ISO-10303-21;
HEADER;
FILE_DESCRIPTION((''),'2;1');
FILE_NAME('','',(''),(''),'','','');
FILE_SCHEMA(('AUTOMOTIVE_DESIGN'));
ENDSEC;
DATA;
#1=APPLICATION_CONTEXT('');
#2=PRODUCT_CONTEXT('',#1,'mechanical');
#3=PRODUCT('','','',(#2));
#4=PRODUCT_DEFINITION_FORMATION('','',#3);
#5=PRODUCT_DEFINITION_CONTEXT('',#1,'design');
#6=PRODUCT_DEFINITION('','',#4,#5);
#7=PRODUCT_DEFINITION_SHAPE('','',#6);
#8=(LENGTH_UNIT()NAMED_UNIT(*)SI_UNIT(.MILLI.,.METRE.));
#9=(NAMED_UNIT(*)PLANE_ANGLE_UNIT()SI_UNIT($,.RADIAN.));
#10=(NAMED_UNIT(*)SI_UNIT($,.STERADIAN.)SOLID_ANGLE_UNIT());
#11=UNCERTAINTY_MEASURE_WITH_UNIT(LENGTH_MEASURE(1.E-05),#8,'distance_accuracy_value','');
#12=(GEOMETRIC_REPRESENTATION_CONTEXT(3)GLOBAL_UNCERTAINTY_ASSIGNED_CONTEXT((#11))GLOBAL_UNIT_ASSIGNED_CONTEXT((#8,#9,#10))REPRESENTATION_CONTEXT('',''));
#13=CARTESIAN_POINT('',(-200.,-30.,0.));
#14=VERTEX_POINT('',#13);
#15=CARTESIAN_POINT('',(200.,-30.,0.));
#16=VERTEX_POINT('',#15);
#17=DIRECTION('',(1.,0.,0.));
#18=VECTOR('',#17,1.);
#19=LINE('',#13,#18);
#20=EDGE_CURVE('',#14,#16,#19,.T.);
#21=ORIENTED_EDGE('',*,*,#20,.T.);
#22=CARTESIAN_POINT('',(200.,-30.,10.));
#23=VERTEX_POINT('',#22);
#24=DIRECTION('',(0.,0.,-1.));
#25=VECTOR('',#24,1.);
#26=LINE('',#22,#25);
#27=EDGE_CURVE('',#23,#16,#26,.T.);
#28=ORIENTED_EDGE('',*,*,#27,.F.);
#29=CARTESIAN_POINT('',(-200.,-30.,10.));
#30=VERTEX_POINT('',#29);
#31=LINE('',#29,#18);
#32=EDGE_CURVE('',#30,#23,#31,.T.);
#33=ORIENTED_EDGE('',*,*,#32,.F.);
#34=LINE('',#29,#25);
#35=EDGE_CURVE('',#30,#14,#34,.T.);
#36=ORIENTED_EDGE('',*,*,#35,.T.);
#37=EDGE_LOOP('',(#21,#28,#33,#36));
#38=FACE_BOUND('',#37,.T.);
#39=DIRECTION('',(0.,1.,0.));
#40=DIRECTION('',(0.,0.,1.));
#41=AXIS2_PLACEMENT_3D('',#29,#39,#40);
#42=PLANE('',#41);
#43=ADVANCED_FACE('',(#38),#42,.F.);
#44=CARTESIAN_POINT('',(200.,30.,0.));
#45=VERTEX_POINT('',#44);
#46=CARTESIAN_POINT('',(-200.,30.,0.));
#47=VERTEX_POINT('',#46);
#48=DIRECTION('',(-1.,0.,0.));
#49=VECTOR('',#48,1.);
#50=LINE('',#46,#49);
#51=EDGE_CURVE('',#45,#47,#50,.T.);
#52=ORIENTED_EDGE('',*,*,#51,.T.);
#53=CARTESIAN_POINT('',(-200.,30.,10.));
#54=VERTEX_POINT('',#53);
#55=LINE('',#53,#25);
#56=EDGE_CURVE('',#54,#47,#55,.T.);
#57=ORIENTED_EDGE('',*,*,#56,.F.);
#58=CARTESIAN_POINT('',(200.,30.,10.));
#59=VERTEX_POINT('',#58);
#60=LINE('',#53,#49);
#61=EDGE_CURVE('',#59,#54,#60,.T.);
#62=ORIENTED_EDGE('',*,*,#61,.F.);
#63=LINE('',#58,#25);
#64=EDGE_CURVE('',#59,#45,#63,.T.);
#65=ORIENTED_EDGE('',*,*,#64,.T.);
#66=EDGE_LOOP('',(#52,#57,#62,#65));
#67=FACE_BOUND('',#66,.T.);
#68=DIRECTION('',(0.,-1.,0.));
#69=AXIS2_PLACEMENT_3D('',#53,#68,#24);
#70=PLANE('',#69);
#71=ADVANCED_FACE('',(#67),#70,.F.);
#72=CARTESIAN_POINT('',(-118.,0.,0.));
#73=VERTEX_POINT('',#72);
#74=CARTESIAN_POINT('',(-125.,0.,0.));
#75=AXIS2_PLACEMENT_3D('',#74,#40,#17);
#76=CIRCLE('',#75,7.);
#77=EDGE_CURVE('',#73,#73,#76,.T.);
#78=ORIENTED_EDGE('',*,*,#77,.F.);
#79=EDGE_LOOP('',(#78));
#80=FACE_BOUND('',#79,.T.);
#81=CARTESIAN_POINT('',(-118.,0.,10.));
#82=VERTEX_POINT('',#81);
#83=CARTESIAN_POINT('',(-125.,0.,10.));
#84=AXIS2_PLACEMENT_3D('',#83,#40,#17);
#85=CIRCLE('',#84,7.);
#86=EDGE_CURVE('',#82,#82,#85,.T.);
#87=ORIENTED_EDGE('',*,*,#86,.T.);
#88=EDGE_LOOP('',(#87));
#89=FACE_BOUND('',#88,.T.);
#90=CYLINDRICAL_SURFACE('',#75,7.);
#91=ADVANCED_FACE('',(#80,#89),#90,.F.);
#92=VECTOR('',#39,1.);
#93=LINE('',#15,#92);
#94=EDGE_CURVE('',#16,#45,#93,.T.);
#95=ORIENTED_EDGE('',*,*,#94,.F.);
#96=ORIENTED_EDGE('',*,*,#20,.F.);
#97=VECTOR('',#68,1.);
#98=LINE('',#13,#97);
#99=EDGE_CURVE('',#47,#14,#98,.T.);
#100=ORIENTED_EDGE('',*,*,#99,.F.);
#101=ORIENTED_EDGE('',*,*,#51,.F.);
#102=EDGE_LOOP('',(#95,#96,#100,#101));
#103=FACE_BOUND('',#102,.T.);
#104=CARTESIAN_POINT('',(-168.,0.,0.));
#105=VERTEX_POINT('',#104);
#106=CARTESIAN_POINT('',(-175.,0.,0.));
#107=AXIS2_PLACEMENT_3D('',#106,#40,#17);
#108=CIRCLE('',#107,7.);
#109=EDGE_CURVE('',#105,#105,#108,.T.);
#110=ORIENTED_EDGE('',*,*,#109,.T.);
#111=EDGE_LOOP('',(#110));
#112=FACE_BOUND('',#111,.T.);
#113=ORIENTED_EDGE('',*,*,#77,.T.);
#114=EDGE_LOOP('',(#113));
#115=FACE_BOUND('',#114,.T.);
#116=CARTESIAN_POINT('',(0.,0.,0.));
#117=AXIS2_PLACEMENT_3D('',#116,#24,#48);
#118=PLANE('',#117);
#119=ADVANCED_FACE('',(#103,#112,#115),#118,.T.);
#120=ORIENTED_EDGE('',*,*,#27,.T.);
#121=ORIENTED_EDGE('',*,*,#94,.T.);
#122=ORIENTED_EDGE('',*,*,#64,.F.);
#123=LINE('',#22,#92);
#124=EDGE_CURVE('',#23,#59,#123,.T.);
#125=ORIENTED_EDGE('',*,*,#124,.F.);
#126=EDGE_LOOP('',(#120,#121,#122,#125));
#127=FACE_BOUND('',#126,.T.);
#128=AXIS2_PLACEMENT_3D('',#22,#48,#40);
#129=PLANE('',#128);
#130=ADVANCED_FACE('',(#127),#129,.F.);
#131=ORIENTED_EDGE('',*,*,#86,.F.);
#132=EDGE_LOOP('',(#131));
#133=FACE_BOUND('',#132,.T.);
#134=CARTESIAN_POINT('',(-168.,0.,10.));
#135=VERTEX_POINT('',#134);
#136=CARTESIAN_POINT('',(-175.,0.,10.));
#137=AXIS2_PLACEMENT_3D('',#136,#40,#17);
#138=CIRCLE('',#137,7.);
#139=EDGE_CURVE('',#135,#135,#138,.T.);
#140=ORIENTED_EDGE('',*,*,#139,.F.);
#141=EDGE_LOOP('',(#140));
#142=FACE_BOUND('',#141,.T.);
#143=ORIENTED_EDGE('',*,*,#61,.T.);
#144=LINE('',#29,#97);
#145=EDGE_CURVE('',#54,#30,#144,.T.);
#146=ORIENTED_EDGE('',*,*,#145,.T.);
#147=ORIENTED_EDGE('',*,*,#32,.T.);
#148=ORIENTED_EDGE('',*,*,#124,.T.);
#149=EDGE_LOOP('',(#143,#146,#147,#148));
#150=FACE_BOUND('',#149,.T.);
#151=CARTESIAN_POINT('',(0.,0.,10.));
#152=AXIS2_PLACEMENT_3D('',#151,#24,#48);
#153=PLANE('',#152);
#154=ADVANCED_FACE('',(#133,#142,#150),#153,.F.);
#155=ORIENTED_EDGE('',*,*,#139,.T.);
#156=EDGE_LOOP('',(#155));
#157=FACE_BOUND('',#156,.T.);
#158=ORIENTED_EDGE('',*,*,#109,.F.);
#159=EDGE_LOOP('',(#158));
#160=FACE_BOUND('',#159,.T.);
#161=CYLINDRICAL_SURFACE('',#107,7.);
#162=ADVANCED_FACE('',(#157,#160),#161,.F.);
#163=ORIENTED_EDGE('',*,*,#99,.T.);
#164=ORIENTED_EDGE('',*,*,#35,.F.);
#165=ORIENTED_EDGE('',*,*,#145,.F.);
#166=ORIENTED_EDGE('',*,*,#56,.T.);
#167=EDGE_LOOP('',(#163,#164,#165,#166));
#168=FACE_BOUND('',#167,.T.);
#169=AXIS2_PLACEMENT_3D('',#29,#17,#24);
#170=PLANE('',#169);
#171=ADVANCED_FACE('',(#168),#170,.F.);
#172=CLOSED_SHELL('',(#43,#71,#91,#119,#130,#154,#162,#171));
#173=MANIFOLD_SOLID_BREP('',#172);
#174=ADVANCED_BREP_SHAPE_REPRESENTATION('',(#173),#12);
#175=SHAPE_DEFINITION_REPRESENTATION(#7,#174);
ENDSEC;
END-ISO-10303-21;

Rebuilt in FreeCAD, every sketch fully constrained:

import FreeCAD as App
import Part
import Sketcher

V = App.Vector

doc = App.newDocument("Part")
params = doc.addObject("Spreadsheet::Sheet", "Params")
for row, (alias, value) in enumerate([
    ("sketch1_width", "400 mm"),
    ("sketch1_height", "60 mm"),
    ("pad1_length", "10 mm"),
    ("sketch2_diameter", "14 mm"),
    ("pocket1_length", "10 mm"),
], start=1):
    params.set(f"A{row}", alias)
    params.set(f"B{row}", "=" + value)
    params.setAlias(f"B{row}", alias)

body = doc.addObject("PartDesign::Body", "Body")

# Sketch on XY plane
sketch1 = body.newObject("Sketcher::SketchObject", "Sketch")
sketch1.AttachmentSupport = (doc.getObject("XY_Plane"), [""])
sketch1.MapMode = "FlatFace"
sketch1.addGeometry([
    Part.LineSegment(V(-200, 30, 0), V(-200, -30, 0)),
    Part.LineSegment(V(-200, -30, 0), V(200, -30, 0)),
    Part.LineSegment(V(200, -30, 0), V(200, 30, 0)),
    Part.LineSegment(V(200, 30, 0), V(-200, 30, 0)),
], False)
sketch1.addConstraint([
    Sketcher.Constraint("Coincident", 0, 2, 1, 1),
    Sketcher.Constraint("Coincident", 1, 2, 2, 1),
    Sketcher.Constraint("Coincident", 2, 2, 3, 1),
    Sketcher.Constraint("Coincident", 3, 2, 0, 1),
    Sketcher.Constraint("Vertical", 0),
    Sketcher.Constraint("Horizontal", 1),
    Sketcher.Constraint("Vertical", 2),
    Sketcher.Constraint("Horizontal", 3),
    Sketcher.Constraint("Symmetric", 0, 2, 2, 2, -1, 1),
    Sketcher.Constraint("DistanceX", 1, 1, 1, 2, 400.0),
    Sketcher.Constraint("DistanceY", 0, 2, 0, 1, 60.0),
])
sketch1.setExpression("Constraints[9]", "Params.sketch1_width")
sketch1.setExpression("Constraints[10]", "Params.sketch1_height")
pad1 = body.newObject("PartDesign::Pad", "Pad")
pad1.Profile = sketch1
pad1.setExpression("Length", "Params.pad1_length")

# Sketch on XY plane
sketch2 = body.newObject("Sketcher::SketchObject", "Sketch001")
sketch2.AttachmentSupport = (doc.getObject("XY_Plane"), [""])
sketch2.MapMode = "FlatFace"
sketch2.AttachmentOffset = App.Placement(V(0, 0, 10), App.Rotation())
sketch2.addGeometry([
    Part.Circle(V(-175, 0, 0), V(0, 0, 1), 7),
    Part.Circle(V(-125, 0, 0), V(0, 0, 1), 7),
], False)
sketch2.addConstraint([
    Sketcher.Constraint("Equal", 0, 1),
    Sketcher.Constraint("PointOnObject", 0, 3, -1),
    Sketcher.Constraint("PointOnObject", 1, 3, -1),
    Sketcher.Constraint("Diameter", 0, 14.0),
    Sketcher.Constraint("DistanceX", 0, 3, -1, 1, 175.0),
    Sketcher.Constraint("DistanceX", 1, 3, -1, 1, 125.0),
])
sketch2.setExpression("Constraints[3]", "Params.sketch2_diameter")
pocket1 = body.newObject("PartDesign::Pocket", "Pocket")
pocket1.Profile = sketch2
pocket1.setExpression("Length", "Params.pocket1_length")

doc.recompute()
